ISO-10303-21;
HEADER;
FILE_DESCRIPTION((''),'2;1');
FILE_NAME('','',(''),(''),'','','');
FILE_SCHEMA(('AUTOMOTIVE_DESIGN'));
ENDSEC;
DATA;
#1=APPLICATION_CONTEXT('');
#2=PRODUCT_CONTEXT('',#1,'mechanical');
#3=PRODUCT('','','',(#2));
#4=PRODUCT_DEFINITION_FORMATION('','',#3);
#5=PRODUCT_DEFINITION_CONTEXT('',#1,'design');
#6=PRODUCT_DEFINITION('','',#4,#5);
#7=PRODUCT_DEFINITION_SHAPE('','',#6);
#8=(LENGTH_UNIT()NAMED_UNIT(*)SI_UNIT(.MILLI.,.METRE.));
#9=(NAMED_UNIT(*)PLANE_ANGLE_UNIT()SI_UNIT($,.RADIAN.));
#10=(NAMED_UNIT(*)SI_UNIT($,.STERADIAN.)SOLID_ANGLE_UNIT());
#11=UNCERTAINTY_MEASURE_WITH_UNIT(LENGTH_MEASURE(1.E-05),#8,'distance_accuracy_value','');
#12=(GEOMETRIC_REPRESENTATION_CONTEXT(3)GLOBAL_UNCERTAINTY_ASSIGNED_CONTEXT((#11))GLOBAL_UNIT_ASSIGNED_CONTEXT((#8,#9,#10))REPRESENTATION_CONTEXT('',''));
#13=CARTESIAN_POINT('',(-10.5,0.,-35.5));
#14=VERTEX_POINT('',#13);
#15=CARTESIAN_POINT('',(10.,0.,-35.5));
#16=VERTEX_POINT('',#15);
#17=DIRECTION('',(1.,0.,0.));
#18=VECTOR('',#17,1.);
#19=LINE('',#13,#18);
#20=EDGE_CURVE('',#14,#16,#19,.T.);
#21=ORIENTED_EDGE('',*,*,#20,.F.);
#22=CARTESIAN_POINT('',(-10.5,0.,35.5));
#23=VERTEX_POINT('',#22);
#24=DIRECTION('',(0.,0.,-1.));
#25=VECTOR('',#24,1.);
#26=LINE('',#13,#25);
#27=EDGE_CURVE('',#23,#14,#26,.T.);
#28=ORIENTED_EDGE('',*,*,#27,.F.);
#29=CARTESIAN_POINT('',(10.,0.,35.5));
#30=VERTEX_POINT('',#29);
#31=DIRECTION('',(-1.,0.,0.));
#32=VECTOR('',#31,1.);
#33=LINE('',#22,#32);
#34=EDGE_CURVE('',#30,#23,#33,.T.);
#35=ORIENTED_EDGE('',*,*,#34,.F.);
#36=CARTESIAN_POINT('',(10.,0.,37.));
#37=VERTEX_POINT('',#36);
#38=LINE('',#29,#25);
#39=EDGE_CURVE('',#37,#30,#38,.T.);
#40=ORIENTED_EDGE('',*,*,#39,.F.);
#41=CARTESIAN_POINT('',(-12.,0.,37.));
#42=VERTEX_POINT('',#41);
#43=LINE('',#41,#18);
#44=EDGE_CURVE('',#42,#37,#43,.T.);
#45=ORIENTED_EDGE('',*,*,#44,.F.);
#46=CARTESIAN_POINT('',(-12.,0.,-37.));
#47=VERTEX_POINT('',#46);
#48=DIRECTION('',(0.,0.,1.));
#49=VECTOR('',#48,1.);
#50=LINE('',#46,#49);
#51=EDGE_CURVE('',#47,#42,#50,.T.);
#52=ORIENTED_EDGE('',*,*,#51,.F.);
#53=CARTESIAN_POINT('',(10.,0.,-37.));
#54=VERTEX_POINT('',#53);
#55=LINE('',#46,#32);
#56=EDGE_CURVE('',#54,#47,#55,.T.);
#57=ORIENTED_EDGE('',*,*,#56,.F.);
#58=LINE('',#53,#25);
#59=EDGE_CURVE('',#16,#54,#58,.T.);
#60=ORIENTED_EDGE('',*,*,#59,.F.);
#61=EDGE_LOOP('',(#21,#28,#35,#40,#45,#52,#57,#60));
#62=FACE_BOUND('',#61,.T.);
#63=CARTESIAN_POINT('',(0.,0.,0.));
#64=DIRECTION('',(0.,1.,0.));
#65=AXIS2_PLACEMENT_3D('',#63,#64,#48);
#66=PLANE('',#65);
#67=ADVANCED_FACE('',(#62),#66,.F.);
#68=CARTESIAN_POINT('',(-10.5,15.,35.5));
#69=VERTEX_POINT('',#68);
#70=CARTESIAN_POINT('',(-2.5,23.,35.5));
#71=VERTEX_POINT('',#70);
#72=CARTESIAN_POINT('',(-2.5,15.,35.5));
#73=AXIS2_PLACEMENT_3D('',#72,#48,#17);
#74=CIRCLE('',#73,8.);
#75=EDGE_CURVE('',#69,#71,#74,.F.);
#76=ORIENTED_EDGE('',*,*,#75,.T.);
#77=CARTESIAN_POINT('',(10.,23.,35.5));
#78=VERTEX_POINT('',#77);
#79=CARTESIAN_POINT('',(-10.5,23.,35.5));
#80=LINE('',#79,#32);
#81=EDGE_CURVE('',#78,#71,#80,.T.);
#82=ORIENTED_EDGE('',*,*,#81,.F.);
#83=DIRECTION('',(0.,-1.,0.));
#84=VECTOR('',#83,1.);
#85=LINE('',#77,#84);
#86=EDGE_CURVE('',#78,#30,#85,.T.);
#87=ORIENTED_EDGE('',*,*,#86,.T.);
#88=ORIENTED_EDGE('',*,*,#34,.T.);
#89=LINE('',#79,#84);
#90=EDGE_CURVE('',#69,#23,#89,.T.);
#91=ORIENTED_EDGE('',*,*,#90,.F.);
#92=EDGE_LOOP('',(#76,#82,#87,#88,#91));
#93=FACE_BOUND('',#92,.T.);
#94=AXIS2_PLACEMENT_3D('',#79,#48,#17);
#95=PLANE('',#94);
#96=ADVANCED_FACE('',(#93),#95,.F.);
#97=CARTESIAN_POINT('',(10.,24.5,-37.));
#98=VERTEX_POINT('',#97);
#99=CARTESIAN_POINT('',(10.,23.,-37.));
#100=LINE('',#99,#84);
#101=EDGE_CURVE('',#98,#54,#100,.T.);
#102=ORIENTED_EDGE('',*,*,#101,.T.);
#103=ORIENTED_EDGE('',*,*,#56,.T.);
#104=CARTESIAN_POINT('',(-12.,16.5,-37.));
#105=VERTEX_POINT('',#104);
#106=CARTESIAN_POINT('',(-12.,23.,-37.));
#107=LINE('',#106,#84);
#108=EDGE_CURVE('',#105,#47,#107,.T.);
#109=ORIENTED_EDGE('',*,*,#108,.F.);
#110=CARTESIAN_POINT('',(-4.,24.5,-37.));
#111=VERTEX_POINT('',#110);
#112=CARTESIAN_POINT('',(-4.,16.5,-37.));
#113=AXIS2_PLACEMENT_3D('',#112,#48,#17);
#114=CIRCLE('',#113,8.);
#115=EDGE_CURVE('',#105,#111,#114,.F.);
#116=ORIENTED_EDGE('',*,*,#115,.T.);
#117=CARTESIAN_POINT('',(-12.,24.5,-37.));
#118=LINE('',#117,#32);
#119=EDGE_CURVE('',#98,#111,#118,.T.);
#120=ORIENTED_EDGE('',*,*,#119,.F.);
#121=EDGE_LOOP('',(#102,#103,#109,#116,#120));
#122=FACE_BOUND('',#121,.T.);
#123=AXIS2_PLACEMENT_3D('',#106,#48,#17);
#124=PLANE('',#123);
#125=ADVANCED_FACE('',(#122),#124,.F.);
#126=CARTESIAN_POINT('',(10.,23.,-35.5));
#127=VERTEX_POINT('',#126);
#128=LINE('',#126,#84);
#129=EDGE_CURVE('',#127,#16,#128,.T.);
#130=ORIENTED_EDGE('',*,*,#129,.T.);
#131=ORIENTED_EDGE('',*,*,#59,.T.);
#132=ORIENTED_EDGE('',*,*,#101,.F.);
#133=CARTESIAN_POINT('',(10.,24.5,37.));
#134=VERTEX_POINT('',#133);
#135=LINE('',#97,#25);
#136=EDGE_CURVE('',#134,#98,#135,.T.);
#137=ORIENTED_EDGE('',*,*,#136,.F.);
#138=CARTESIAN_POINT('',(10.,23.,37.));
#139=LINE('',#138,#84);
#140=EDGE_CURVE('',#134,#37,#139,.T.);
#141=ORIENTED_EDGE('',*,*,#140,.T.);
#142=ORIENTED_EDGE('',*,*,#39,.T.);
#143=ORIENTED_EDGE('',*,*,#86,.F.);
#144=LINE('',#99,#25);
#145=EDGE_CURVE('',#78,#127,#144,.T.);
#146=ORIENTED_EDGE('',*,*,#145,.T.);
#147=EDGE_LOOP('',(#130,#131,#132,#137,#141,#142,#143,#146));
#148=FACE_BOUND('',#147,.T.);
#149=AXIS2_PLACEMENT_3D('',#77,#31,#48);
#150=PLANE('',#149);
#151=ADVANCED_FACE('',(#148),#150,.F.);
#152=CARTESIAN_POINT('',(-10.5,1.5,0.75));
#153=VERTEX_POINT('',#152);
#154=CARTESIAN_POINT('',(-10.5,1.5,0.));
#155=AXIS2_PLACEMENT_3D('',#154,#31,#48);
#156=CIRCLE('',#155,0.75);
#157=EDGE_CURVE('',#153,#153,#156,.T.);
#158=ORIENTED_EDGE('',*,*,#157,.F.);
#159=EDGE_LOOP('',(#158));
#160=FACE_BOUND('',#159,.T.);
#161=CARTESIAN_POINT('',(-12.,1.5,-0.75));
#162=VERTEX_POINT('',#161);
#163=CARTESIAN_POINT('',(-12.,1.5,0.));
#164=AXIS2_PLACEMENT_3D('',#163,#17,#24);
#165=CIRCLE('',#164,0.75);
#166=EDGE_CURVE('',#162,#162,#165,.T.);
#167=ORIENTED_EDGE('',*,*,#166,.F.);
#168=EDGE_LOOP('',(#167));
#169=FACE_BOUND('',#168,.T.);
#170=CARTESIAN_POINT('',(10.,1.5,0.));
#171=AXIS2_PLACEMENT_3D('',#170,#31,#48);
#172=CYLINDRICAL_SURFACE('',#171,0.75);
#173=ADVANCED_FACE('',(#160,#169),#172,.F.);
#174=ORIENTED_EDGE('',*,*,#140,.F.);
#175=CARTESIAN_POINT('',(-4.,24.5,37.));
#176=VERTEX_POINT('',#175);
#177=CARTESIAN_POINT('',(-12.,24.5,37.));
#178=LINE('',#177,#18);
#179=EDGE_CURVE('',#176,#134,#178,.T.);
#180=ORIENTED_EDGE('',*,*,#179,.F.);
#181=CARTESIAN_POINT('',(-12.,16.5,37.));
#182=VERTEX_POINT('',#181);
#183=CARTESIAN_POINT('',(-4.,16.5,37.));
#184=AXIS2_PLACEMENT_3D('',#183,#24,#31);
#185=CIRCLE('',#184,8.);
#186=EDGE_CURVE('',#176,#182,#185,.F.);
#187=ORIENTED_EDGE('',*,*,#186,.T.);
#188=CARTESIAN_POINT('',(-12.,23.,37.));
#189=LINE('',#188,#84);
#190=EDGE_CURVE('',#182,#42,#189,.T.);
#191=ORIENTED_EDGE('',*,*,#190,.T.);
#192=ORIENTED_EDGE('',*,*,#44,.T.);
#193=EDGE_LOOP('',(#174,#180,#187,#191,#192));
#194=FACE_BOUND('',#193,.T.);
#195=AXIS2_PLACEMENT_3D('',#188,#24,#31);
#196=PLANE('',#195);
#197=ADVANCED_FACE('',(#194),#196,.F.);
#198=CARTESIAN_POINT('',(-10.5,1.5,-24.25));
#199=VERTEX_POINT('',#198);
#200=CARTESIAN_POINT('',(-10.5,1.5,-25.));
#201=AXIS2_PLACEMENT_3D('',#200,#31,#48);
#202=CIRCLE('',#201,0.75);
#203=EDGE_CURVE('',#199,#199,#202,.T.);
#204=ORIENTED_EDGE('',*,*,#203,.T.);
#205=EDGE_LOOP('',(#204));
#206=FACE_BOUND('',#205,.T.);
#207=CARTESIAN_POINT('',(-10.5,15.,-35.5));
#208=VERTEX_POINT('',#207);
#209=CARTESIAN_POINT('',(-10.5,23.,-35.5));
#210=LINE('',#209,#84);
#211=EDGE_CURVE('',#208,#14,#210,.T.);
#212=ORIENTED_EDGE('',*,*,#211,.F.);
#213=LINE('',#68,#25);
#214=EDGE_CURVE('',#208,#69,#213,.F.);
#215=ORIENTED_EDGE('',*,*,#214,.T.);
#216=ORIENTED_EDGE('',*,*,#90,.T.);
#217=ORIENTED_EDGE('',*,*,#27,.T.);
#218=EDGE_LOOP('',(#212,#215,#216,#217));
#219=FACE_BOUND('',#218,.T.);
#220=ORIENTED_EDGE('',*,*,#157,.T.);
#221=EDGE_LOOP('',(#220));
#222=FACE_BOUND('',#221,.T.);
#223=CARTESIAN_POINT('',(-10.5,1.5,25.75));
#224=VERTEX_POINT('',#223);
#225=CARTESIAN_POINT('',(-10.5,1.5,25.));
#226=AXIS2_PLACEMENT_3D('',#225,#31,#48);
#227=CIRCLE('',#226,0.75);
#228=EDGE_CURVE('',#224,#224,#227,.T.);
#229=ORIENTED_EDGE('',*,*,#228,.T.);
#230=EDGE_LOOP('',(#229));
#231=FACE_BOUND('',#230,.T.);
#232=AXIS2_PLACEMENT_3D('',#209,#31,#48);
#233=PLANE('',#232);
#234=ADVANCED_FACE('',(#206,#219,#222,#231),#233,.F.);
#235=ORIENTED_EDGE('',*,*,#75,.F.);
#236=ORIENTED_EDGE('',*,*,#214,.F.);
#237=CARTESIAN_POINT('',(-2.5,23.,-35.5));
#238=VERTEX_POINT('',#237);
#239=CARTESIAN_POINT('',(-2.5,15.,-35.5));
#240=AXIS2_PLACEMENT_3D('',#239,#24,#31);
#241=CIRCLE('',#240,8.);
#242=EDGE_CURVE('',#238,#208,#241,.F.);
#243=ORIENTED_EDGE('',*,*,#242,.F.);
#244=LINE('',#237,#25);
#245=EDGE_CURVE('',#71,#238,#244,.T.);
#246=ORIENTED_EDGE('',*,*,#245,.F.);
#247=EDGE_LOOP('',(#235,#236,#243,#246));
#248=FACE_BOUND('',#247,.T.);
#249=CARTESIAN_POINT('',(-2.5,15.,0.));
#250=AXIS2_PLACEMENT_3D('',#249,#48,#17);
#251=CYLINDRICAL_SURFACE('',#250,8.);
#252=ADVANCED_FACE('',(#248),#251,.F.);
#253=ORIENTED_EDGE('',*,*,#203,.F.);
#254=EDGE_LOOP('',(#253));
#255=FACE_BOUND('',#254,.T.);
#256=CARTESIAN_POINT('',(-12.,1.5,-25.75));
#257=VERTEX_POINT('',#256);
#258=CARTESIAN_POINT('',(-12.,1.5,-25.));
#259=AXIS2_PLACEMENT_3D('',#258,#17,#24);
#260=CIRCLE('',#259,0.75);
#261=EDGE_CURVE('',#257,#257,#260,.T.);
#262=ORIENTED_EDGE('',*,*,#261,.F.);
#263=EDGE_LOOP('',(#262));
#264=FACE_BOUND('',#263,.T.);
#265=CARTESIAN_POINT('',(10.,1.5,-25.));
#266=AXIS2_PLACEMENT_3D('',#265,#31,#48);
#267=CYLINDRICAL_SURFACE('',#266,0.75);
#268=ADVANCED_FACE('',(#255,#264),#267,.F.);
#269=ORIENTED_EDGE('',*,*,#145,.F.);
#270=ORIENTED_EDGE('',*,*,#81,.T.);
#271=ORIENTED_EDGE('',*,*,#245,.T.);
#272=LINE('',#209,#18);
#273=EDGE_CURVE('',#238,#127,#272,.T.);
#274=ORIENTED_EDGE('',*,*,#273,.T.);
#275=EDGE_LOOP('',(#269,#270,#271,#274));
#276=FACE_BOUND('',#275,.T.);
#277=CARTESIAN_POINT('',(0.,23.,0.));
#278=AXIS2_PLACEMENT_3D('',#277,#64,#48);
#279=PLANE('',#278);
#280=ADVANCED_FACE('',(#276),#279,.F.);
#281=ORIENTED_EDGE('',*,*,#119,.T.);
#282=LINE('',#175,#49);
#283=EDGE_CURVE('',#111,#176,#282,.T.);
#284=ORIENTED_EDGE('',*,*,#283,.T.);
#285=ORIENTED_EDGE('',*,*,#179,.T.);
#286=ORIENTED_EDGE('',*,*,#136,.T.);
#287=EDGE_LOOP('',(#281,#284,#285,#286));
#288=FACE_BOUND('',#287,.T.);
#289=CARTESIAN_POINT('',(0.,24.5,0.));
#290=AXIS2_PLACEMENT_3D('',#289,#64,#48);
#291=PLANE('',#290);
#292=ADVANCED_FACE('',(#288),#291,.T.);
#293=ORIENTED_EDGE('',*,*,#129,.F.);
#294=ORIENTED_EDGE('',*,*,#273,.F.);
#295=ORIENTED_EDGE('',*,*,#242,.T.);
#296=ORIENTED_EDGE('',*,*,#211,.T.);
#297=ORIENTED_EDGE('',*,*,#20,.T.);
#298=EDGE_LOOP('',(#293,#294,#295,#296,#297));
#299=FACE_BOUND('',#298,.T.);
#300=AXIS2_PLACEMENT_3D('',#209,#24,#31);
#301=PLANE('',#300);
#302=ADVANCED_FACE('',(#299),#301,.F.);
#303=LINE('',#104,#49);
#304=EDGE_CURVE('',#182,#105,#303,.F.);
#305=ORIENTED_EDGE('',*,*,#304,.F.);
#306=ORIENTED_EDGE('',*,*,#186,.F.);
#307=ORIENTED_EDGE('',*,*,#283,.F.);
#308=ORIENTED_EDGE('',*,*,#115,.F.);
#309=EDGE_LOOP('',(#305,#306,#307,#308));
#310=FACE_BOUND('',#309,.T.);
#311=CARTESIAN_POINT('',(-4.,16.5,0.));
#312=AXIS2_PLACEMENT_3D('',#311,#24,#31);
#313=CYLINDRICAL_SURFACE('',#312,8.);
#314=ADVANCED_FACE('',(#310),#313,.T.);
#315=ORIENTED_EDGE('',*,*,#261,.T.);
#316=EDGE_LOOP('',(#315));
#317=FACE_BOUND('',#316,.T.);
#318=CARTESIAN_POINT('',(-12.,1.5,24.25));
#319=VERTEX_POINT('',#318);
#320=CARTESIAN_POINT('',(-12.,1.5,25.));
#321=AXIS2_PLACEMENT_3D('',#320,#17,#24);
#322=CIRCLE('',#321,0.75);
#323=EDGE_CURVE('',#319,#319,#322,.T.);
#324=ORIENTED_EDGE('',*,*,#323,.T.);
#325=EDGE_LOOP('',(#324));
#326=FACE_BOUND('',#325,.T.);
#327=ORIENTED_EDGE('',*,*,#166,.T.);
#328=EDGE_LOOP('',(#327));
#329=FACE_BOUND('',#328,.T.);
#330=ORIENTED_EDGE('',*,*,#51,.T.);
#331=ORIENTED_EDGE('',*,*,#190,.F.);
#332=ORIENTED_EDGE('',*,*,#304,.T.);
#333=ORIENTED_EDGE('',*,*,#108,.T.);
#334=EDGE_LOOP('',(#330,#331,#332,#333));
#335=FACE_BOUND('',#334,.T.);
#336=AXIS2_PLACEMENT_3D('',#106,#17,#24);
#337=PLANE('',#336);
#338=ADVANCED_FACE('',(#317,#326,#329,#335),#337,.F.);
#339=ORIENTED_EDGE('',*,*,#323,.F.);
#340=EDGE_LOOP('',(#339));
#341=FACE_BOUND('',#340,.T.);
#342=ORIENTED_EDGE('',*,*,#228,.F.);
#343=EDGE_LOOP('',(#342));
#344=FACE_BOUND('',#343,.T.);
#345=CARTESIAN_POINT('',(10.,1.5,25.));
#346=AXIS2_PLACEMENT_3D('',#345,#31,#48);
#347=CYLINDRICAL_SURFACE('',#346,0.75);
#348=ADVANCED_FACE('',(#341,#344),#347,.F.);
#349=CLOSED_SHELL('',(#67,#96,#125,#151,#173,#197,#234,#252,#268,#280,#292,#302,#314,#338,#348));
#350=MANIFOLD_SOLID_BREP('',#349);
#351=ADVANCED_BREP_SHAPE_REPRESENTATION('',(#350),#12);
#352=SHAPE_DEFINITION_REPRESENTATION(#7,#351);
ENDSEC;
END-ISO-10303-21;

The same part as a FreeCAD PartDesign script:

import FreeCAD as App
import Part
import Sketcher


def edges_at(feature, points):
    """Names of the edges that pass closest to the given points."""
    edges = feature.Shape.Edges
    near = lambda p: min(range(len(edges)), key=lambda i: edges[i].distToShape(Part.Vertex(*p))[0])
    return sorted({f"Edge{near(p) + 1}" for p in points})


def add_polygon(sketch, points):
    """Adds a closed chain of lines whose ends are joined by coincident constraints."""
    first, n = sketch.GeometryCount, len(points)
    for a, b in zip(points, points[1:] + points[:1]):
        sketch.addGeometry(Part.LineSegment(App.Vector(*a, 0), App.Vector(*b, 0)), False)
    for i in range(n):
        sketch.addConstraint(Sketcher.Constraint("Coincident", first + i, 2, first + (i + 1) % n, 1))

doc = App.newDocument("Part")
params = doc.addObject("Spreadsheet::Sheet", "Params")
for row, (alias, value) in enumerate([
    ("sketch1_width", "22 mm"),
    ("sketch1_height", "71 mm"),
    ("sketch1_height2", "74 mm"),
    ("sketch1_width2", "20.5 mm"),
    ("pad1_length", "23 mm"),
    ("sketch2_width", "22 mm"),
    ("sketch2_height", "74 mm"),
    ("pad2_length", "1.5 mm"),
    ("fillet_radius", "8 mm"),
    ("sketch3_diameter", "1.5 mm"),
], start=1):
    params.set(f"A{row}", alias)
    params.set(f"B{row}", "=" + value)
    params.setAlias(f"B{row}", alias)

body = doc.addObject("PartDesign::Body", "Body")

# Sketch on XZ plane
sketch1 = body.newObject("Sketcher::SketchObject", "Sketch")
sketch1.AttachmentSupport = (doc.getObject("XZ_Plane"), [""])
sketch1.MapMode = "FlatFace"
add_polygon(sketch1, [(10, 35.5), (-10.5, 35.5), (-10.5, -35.5), (10, -35.5), (10, -37), (-12, -37), (-12, 37), (10, 37)])  # lines 0-7
sketch1.addConstraint([
    Sketcher.Constraint("Horizontal", 0),
    Sketcher.Constraint("Vertical", 1),
    Sketcher.Constraint("Horizontal", 2),
    Sketcher.Constraint("Vertical", 3),
    Sketcher.Constraint("Horizontal", 4),
    Sketcher.Constraint("Vertical", 5),
    Sketcher.Constraint("Horizontal", 6),
    Sketcher.Constraint("Vertical", 7),
    Sketcher.Constraint("Symmetric", 3, 2, 6, 2, -1),
    Sketcher.Constraint("Equal", 3, 7),
    Sketcher.Constraint("DistanceX", 4, 2, 4, 1, 22.0),
    Sketcher.Constraint("DistanceY", 1, 2, 1, 1, 71.0),
    Sketcher.Constraint("DistanceY", 5, 1, 5, 2, 74.0),
    Sketcher.Constraint("DistanceX", 0, 2, 0, 1, 20.5),
    Sketcher.Constraint("DistanceX", -1, 1, 2, 2, 10.0),
])
sketch1.setExpression("Constraints[18]", "Params.sketch1_width")
sketch1.setExpression("Constraints[19]", "Params.sketch1_height")
sketch1.setExpression("Constraints[20]", "Params.sketch1_height2")
sketch1.setExpression("Constraints[21]", "Params.sketch1_width2")
pad1 = body.newObject("PartDesign::Pad", "Pad")
pad1.Profile = sketch1
pad1.setExpression("Length", "Params.pad1_length")
pad1.Reversed = True

# Sketch on XZ plane
sketch2 = body.newObject("Sketcher::SketchObject", "Sketch001")
sketch2.AttachmentSupport = (doc.getObject("XZ_Plane"), [""])
sketch2.MapMode = "FlatFace"
sketch2.AttachmentOffset = App.Placement(App.Vector(0, 0, -23), App.Rotation())
add_polygon(sketch2, [(-12, -37), (-12, 37), (10, 37), (10, -37)])  # lines 0-3
sketch2.addConstraint([
    Sketcher.Constraint("Vertical", 0),
    Sketcher.Constraint("Horizontal", 1),
    Sketcher.Constraint("Vertical", 2),
    Sketcher.Constraint("Horizontal", 3),
    Sketcher.Constraint("DistanceX", 1, 1, 1, 2, 22.0),
    Sketcher.Constraint("DistanceY", 0, 1, 0, 2, 74.0),
    Sketcher.Constraint("DistanceX", 0, 2, -1, 1, 12.0),
    Sketcher.Constraint("DistanceY", -1, 1, 0, 2, 37.0),
])
sketch2.setExpression("Constraints[8]", "Params.sketch2_width")
sketch2.setExpression("Constraints[9]", "Params.sketch2_height")
pad2 = body.newObject("PartDesign::Pad", "Pad001")
pad2.Profile = sketch2
pad2.setExpression("Length", "Params.pad2_length")
pad2.Reversed = True
doc.recompute()

fillet = body.newObject("PartDesign::Fillet", "Fillet")
fillet.Base = (pad2, edges_at(pad2, [(-12, 24.5, 0), (-10.5, 23, 0)]))
fillet.setExpression("Radius", "Params.fillet_radius")

# Sketch on YZ plane
sketch3 = body.newObject("Sketcher::SketchObject", "Sketch002")
sketch3.AttachmentSupport = (doc.getObject("YZ_Plane"), [""])
sketch3.MapMode = "FlatFace"
sketch3.AttachmentOffset = App.Placement(App.Vector(0, 0, -12), App.Rotation())
sketch3.addGeometry([
    Part.Circle(App.Vector(1.5, -25, 0), App.Vector(0, 0, 1), 0.8),
    Part.Circle(App.Vector(1.5, 0, 0), App.Vector(0, 0, 1), 0.8),
    Part.Circle(App.Vector(1.5, 25, 0), App.Vector(0, 0, 1), 0.8),
], False)
sketch3.addConstraint([
    Sketcher.Constraint("Equal", 0, 1),
    Sketcher.Constraint("Equal", 1, 2),
    Sketcher.Constraint("Symmetric", 0, 3, 2, 3, -1),
    Sketcher.Constraint("PointOnObject", 1, 3, -1),
    Sketcher.Constraint("Vertical", 0, 3, 1, 3),
    Sketcher.Constraint("Diameter", 0, 1.5),
    Sketcher.Constraint("DistanceY", 0, 3, -1, 1, 25.0),
    Sketcher.Constraint("DistanceX", -1, 1, 0, 3, 1.5),
])
sketch3.setExpression("Constraints[5]", "Params.sketch3_diameter")
pocket1 = body.newObject("PartDesign::Pocket", "Pocket")
pocket1.Profile = sketch3
pocket1.Type = "ThroughAll"
pocket1.Midplane = True

doc.recompute()
